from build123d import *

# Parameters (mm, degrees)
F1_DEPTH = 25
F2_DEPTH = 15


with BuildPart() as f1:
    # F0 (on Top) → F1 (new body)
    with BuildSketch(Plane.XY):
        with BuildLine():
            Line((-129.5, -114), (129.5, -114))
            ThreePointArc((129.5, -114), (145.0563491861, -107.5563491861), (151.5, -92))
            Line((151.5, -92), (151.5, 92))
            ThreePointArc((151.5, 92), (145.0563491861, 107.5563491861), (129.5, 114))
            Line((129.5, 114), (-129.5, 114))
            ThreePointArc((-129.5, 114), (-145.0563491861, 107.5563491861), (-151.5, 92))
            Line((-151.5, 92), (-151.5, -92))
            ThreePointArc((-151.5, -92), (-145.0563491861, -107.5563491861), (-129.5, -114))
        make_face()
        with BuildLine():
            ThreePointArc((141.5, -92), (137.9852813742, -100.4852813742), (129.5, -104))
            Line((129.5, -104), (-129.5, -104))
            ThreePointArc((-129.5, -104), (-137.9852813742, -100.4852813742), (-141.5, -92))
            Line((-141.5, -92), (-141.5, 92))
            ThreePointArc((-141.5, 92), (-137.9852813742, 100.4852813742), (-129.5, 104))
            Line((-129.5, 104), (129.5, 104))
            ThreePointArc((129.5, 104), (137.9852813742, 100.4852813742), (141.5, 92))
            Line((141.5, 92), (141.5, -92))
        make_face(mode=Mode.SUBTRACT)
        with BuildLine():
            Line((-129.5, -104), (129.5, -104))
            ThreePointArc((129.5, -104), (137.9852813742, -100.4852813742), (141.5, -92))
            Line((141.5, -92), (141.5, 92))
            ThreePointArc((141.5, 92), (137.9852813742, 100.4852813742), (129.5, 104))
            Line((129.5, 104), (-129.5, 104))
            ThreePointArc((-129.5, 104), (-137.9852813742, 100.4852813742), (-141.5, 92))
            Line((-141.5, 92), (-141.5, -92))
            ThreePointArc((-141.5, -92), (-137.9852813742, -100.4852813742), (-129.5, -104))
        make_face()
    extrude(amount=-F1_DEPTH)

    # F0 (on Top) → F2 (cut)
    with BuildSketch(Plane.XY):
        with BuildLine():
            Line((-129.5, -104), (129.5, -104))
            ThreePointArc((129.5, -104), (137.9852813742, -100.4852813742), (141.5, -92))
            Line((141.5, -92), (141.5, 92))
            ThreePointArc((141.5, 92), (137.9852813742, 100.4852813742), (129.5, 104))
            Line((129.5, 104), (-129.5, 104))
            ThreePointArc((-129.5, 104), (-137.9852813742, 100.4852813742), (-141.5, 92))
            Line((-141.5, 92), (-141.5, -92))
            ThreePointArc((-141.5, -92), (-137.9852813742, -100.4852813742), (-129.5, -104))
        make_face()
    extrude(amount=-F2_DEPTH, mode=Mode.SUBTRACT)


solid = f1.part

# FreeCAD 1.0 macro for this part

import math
import FreeCAD as App
import Part
import Sketcher

V = App.Vector
Q = App.Units.Quantity

doc = App.newDocument("Part")
body = doc.addObject("PartDesign::Body", "Body")

sketch1 = body.newObject("Sketcher::SketchObject", "Sketch")
sketch1.AttachmentSupport = (doc.getObject("XY_Plane"), [""])
sketch1.MapMode = "FlatFace"
sketch1.addGeometry([
    Part.LineSegment(V(-130, -114, 0), V(130, -114, 0)),
    Part.ArcOfCircle(Part.Circle(V(130, -92, 0), V(0, 0, 1), 22), math.radians(-90), math.radians(0)),
    Part.LineSegment(V(152, -92, 0), V(152, 92, 0)),
    Part.ArcOfCircle(Part.Circle(V(130, 92, 0), V(0, 0, 1), 22), math.radians(0), math.radians(90)),
    Part.LineSegment(V(130, 114, 0), V(-130, 114, 0)),
    Part.ArcOfCircle(Part.Circle(V(-130, 92, 0), V(0, 0, 1), 22), math.radians(90), math.radians(180)),
    Part.LineSegment(V(-152, 92, 0), V(-152, -92, 0)),
    Part.ArcOfCircle(Part.Circle(V(-130, -92, 0), V(0, 0, 1), 22), math.radians(180), math.radians(270)),
], False)
sketch1.addConstraint([
    Sketcher.Constraint("Tangent", 0, 2, 1, 1),
    Sketcher.Constraint("Tangent", 1, 2, 2, 1),
    Sketcher.Constraint("Tangent", 2, 2, 3, 1),
    Sketcher.Constraint("Tangent", 3, 2, 4, 1),
    Sketcher.Constraint("Tangent", 4, 2, 5, 1),
    Sketcher.Constraint("Tangent", 5, 2, 6, 1),
    Sketcher.Constraint("Tangent", 6, 2, 7, 1),
    Sketcher.Constraint("Tangent", 7, 2, 0, 1),
    Sketcher.Constraint("Horizontal", 0),
    Sketcher.Constraint("Vertical", 2),
    Sketcher.Constraint("Horizontal", 4),
    Sketcher.Constraint("Vertical", 6),
    Sketcher.Constraint("Equal", 1, 3),
    Sketcher.Constraint("Equal", 3, 5),
    Sketcher.Constraint("Equal", 5, 7),
    Sketcher.Constraint("Symmetric", 1, 3, 5, 3, -1, 1),
    Sketcher.Constraint("Radius", 1, Q("22 mm")),
    Sketcher.Constraint("DistanceX", 0, 1, 0, 2, Q("259 mm")),
    Sketcher.Constraint("DistanceY", 2, 1, 2, 2, Q("184 mm")),
])
pad1 = body.newObject("PartDesign::Pad", "Pad")
pad1.Profile = sketch1
pad1.Length = 25
pad1.Reversed = True

sketch2 = body.newObject("Sketcher::SketchObject", "Sketch001")
sketch2.AttachmentSupport = (doc.getObject("XY_Plane"), [""])
sketch2.MapMode = "FlatFace"
sketch2.addGeometry([
    Part.LineSegment(V(-130, -104, 0), V(130, -104, 0)),
    Part.ArcOfCircle(Part.Circle(V(130, -92, 0), V(0, 0, 1), 12), math.radians(-90), math.radians(0)),
    Part.LineSegment(V(142, -92, 0), V(142, 92, 0)),
    Part.ArcOfCircle(Part.Circle(V(130, 92, 0), V(0, 0, 1), 12), math.radians(0), math.radians(90)),
    Part.LineSegment(V(130, 104, 0), V(-130, 104, 0)),
    Part.ArcOfCircle(Part.Circle(V(-130, 92, 0), V(0, 0, 1), 12), math.radians(90), math.radians(180)),
    Part.LineSegment(V(-142, 92, 0), V(-142, -92, 0)),
    Part.ArcOfCircle(Part.Circle(V(-130, -92, 0), V(0, 0, 1), 12), math.radians(180), math.radians(270)),
], False)
sketch2.addConstraint([
    Sketcher.Constraint("Tangent", 0, 2, 1, 1),
    Sketcher.Constraint("Tangent", 1, 2, 2, 1),
    Sketcher.Constraint("Tangent", 2, 2, 3, 1),
    Sketcher.Constraint("Tangent", 3, 2, 4, 1),
    Sketcher.Constraint("Tangent", 4, 2, 5, 1),
    Sketcher.Constraint("Tangent", 5, 2, 6, 1),
    Sketcher.Constraint("Tangent", 6, 2, 7, 1),
    Sketcher.Constraint("Tangent", 7, 2, 0, 1),
    Sketcher.Constraint("Horizontal", 0),
    Sketcher.Constraint("Vertical", 2),
    Sketcher.Constraint("Horizontal", 4),
    Sketcher.Constraint("Vertical", 6),
    Sketcher.Constraint("Equal", 1, 3),
    Sketcher.Constraint("Equal", 3, 5),
    Sketcher.Constraint("Equal", 5, 7),
    Sketcher.Constraint("Symmetric", 1, 3, 5, 3, -1, 1),
    Sketcher.Constraint("Radius", 1, Q("12 mm")),
    Sketcher.Constraint("DistanceX", 0, 1, 0, 2, Q("259 mm")),
    Sketcher.Constraint("DistanceY", 2, 1, 2, 2, Q("184 mm")),
])
pocket1 = body.newObject("PartDesign::Pocket", "Pocket")
pocket1.Profile = sketch2
pocket1.Length = 15

doc.recompute()
